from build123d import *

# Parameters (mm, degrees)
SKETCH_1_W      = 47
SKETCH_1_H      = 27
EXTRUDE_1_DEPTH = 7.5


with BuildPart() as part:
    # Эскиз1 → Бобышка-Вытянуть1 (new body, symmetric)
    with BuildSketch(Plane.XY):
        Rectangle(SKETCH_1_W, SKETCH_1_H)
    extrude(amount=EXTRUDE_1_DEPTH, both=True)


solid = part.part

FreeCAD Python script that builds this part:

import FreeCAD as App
import Part
import Sketcher
from FreeCAD import Vector

doc = App.newDocument("Part")
body = doc.addObject("PartDesign::Body", "Body")

sketch1 = doc.addObject("Sketcher::SketchObject", "Sketch")
body.addObject(sketch1)
sketch1.AttachmentSupport = (doc.XY_Plane, [""])
sketch1.MapMode = "FlatFace"
sketch1.addGeometry([
    Part.LineSegment(Vector(-24, 14, 0), Vector(-24, -14, 0)),
    Part.LineSegment(Vector(-24, -14, 0), Vector(24, -14, 0)),
    Part.LineSegment(Vector(24, -14, 0), Vector(24, 14, 0)),
    Part.LineSegment(Vector(24, 14, 0), Vector(-24, 14, 0)),
], False)
sketch1.addConstraint([
    Sketcher.Constraint("Coincident", 0, 2, 1, 1),
    Sketcher.Constraint("Coincident", 1, 2, 2, 1),
    Sketcher.Constraint("Coincident", 2, 2, 3, 1),
    Sketcher.Constraint("Coincident", 3, 2, 0, 1),
    Sketcher.Constraint("Vertical", 0),
    Sketcher.Constraint("Horizontal", 1),
    Sketcher.Constraint("Vertical", 2),
    Sketcher.Constraint("Horizontal", 3),
    Sketcher.Constraint("Symmetric", 0, 2, 2, 2, -1, 1),
    Sketcher.Constraint("DistanceX", 1, 1, 1, 2, 47.0),
    Sketcher.Constraint("DistanceY", 0, 2, 0, 1, 27.0),
])
pad1 = doc.addObject("PartDesign::Pad", "Pad")
body.addObject(pad1)
pad1.Profile = sketch1
pad1.Length = 15
pad1.Midplane = True

doc.recompute()
